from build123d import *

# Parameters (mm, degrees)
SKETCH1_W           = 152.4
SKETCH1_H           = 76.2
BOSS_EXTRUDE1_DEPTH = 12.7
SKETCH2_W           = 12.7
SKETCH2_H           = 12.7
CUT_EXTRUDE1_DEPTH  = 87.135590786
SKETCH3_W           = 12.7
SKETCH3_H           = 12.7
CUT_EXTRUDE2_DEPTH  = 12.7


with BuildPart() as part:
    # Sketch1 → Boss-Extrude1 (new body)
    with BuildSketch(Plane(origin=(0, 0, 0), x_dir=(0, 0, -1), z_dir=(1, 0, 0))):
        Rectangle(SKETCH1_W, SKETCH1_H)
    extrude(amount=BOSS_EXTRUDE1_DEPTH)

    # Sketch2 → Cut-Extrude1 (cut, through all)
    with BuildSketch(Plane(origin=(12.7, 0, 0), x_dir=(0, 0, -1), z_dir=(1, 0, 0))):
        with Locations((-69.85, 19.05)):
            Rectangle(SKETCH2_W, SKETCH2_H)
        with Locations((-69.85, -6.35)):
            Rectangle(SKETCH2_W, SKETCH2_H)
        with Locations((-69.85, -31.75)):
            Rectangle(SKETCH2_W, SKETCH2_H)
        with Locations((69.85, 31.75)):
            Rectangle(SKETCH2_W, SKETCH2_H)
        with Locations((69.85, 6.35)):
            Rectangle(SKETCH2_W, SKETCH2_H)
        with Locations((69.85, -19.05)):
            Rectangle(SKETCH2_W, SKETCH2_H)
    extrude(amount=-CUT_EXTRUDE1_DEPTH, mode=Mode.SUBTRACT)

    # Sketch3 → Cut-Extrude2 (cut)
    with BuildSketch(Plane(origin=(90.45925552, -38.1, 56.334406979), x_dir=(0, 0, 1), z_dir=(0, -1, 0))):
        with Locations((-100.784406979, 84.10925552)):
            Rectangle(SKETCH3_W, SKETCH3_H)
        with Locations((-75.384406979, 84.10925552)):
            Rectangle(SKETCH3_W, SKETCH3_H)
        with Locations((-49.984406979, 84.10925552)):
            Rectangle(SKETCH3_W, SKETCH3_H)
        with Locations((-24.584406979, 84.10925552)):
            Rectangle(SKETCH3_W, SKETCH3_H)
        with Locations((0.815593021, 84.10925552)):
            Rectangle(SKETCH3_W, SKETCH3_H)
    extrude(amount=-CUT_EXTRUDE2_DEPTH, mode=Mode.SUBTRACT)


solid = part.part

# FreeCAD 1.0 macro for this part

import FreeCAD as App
import Part
import Sketcher
Q = App.Units.Quantity

doc = App.newDocument("Part")
params = doc.addObject("Spreadsheet::Sheet", "Params")
for row, (alias, value) in enumerate([
    ("sketch1_width", "3 in"),
    ("sketch1_height", "6 in"),
    ("pad1_length", "0.5 in"),
    ("sketch2_width", "0.5 in"),
    ("sketch3_width", "0.5 in"),
    ("pocket2_length", "0.5 in"),
], start=1):
    params.set(f"A{row}", alias)
    params.set(f"B{row}", "=" + value)
    params.setAlias(f"B{row}", alias)

body = doc.addObject("PartDesign::Body", "Body")

# Sketch on YZ plane
sketch1 = body.newObject("Sketcher::SketchObject", "Sketch")
sketch1.AttachmentSupport = (doc.getObject("YZ_Plane"), [""])
sketch1.MapMode = "FlatFace"
sketch1.addGeometry(Part.LineSegment(App.Vector(38, 76, 0), App.Vector(-38, 76, 0)), False)
sketch1.addGeometry(Part.LineSegment(App.Vector(-38, 76, 0), App.Vector(-38, -76, 0)), False)
sketch1.addGeometry(Part.LineSegment(App.Vector(-38, -76, 0), App.Vector(38, -76, 0)), False)
sketch1.addGeometry(Part.LineSegment(App.Vector(38, -76, 0), App.Vector(38, 76, 0)), False)
sketch1.addConstraint(Sketcher.Constraint("Coincident", 0, 2, 1, 1))
sketch1.addConstraint(Sketcher.Constraint("Coincident", 1, 2, 2, 1))
sketch1.addConstraint(Sketcher.Constraint("Coincident", 2, 2, 3, 1))
sketch1.addConstraint(Sketcher.Constraint("Coincident", 3, 2, 0, 1))
sketch1.addConstraint(Sketcher.Constraint("Horizontal", 0))
sketch1.addConstraint(Sketcher.Constraint("Vertical", 1))
sketch1.addConstraint(Sketcher.Constraint("Horizontal", 2))
sketch1.addConstraint(Sketcher.Constraint("Vertical", 3))
sketch1.addConstraint(Sketcher.Constraint("Symmetric", 0, 2, 2, 2, -1, 1))
sketch1.addConstraint(Sketcher.Constraint("DistanceX", 0, 2, 0, 1, Q("3 in")))
sketch1.addConstraint(Sketcher.Constraint("DistanceY", 1, 2, 1, 1, Q("6 in")))
sketch1.setExpression("Constraints[9]", "Params.sketch1_width")
sketch1.setExpression("Constraints[10]", "Params.sketch1_height")
pad1 = body.newObject("PartDesign::Pad", "Pad")
pad1.Profile = sketch1
pad1.setExpression("Length", "Params.pad1_length")

# Sketch on YZ plane
sketch2 = body.newObject("Sketcher::SketchObject", "Sketch001")
sketch2.AttachmentSupport = (doc.getObject("YZ_Plane"), [""])
sketch2.MapMode = "FlatFace"
sketch2.AttachmentOffset = App.Placement(App.Vector(0, 0, 0.5 * 25.4), App.Rotation())
sketch2.addGeometry(Part.LineSegment(App.Vector(25, 76, 0), App.Vector(13, 76, 0)), False)
sketch2.addGeometry(Part.LineSegment(App.Vector(13, 76, 0), App.Vector(13, 64, 0)), False)
sketch2.addGeometry(Part.LineSegment(App.Vector(13, 64, 0), App.Vector(25, 64, 0)), False)
sketch2.addGeometry(Part.LineSegment(App.Vector(25, 64, 0), App.Vector(25, 76, 0)), False)
sketch2.addGeometry(Part.LineSegment(App.Vector(0, 76, 0), App.Vector(-13, 76, 0)), False)
sketch2.addGeometry(Part.LineSegment(App.Vector(-13, 76, 0), App.Vector(-13, 64, 0)), False)
sketch2.addGeometry(Part.LineSegment(App.Vector(-13, 64, 0), App.Vector(0, 64, 0)), False)
sketch2.addGeometry(Part.LineSegment(App.Vector(0, 64, 0), App.Vector(0, 76, 0)), False)
sketch2.addGeometry(Part.LineSegment(App.Vector(-25, 76, 0), App.Vector(-38, 76, 0)), False)
sketch2.addGeometry(Part.LineSegment(App.Vector(-38, 76, 0), App.Vector(-38, 64, 0)), False)
sketch2.addGeometry(Part.LineSegment(App.Vector(-38, 64, 0), App.Vector(-25, 64, 0)), False)
sketch2.addGeometry(Part.LineSegment(App.Vector(-25, 64, 0), App.Vector(-25, 76, 0)), False)
sketch2.addGeometry(Part.LineSegment(App.Vector(38, -64, 0), App.Vector(25, -64, 0)), False)
sketch2.addGeometry(Part.LineSegment(App.Vector(25, -64, 0), App.Vector(25, -76, 0)), False)
sketch2.addGeometry(Part.LineSegment(App.Vector(25, -76, 0), App.Vector(38, -76, 0)), False)
sketch2.addGeometry(Part.LineSegment(App.Vector(38, -76, 0), App.Vector(38, -64, 0)), False)
sketch2.addGeometry(Part.LineSegment(App.Vector(13, -64, 0), App.Vector(0, -64, 0)), False)
sketch2.addGeometry(Part.LineSegment(App.Vector(0, -64, 0), App.Vector(0, -76, 0)), False)
sketch2.addGeometry(Part.LineSegment(App.Vector(0, -76, 0), App.Vector(13, -76, 0)), False)
sketch2.addGeometry(Part.LineSegment(App.Vector(13, -76, 0), App.Vector(13, -64, 0)), False)
sketch2.addGeometry(Part.LineSegment(App.Vector(-13, -64, 0), App.Vector(-25, -64, 0)), False)
sketch2.addGeometry(Part.LineSegment(App.Vector(-25, -64, 0), App.Vector(-25, -76, 0)), False)
sketch2.addGeometry(Part.LineSegment(App.Vector(-25, -76, 0), App.Vector(-13, -76, 0)), False)
sketch2.addGeometry(Part.LineSegment(App.Vector(-13, -76, 0), App.Vector(-13, -64, 0)), False)
sketch2.addConstraint(Sketcher.Constraint("Coincident", 0, 2, 1, 1))
sketch2.addConstraint(Sketcher.Constraint("Coincident", 1, 2, 2, 1))
sketch2.addConstraint(Sketcher.Constraint("Coincident", 2, 2, 3, 1))
sketch2.addConstraint(Sketcher.Constraint("Coincident", 3, 2, 0, 1))
sketch2.addConstraint(Sketcher.Constraint("Coincident", 4, 2, 5, 1))
sketch2.addConstraint(Sketcher.Constraint("Coincident", 5, 2, 6, 1))
sketch2.addConstraint(Sketcher.Constraint("Coincident", 6, 2, 7, 1))
sketch2.addConstraint(Sketcher.Constraint("Coincident", 7, 2, 4, 1))
sketch2.addConstraint(Sketcher.Constraint("Coincident", 8, 2, 9, 1))
sketch2.addConstraint(Sketcher.Constraint("Coincident", 9, 2, 10, 1))
sketch2.addConstraint(Sketcher.Constraint("Coincident", 10, 2, 11, 1))
sketch2.addConstraint(Sketcher.Constraint("Coincident", 11, 2, 8, 1))
sketch2.addConstraint(Sketcher.Constraint("Coincident", 12, 2, 13, 1))
sketch2.addConstraint(Sketcher.Constraint("Coincident", 13, 2, 14, 1))
sketch2.addConstraint(Sketcher.Constraint("Coincident", 14, 2, 15, 1))
sketch2.addConstraint(Sketcher.Constraint("Coincident", 15, 2, 12, 1))
sketch2.addConstraint(Sketcher.Constraint("Coincident", 16, 2, 17, 1))
sketch2.addConstraint(Sketcher.Constraint("Coincident", 17, 2, 18, 1))
sketch2.addConstraint(Sketcher.Constraint("Coincident", 18, 2, 19, 1))
sketch2.addConstraint(Sketcher.Constraint("Coincident", 19, 2, 16, 1))
sketch2.addConstraint(Sketcher.Constraint("Coincident", 20, 2, 21, 1))
sketch2.addConstraint(Sketcher.Constraint("Coincident", 21, 2, 22, 1))
sketch2.addConstraint(Sketcher.Constraint("Coincident", 22, 2, 23, 1))
sketch2.addConstraint(Sketcher.Constraint("Coincident", 23, 2, 20, 1))
sketch2.addConstraint(Sketcher.Constraint("Horizontal", 0))
sketch2.addConstraint(Sketcher.Constraint("Vertical", 1))
sketch2.addConstraint(Sketcher.Constraint("Horizontal", 2))
sketch2.addConstraint(Sketcher.Constraint("Vertical", 3))
sketch2.addConstraint(Sketcher.Constraint("Horizontal", 4))
sketch2.addConstraint(Sketcher.Constraint("Vertical", 5))
sketch2.addConstraint(Sketcher.Constraint("Horizontal", 6))
sketch2.addConstraint(Sketcher.Constraint("Vertical", 7))
sketch2.addConstraint(Sketcher.Constraint("Horizontal", 8))
sketch2.addConstraint(Sketcher.Constraint("Vertical", 9))
sketch2.addConstraint(Sketcher.Constraint("Horizontal", 10))
sketch2.addConstraint(Sketcher.Constraint("Vertical", 11))
sketch2.addConstraint(Sketcher.Constraint("Horizontal", 12))
sketch2.addConstraint(Sketcher.Constraint("Vertical", 13))
sketch2.addConstraint(Sketcher.Constraint("Horizontal", 14))
sketch2.addConstraint(Sketcher.Constraint("Vertical", 15))
sketch2.addConstraint(Sketcher.Constraint("Horizontal", 16))
sketch2.addConstraint(Sketcher.Constraint("Vertical", 17))
sketch2.addConstraint(Sketcher.Constraint("Horizontal", 18))
sketch2.addConstraint(Sketcher.Constraint("Vertical", 19))
sketch2.addConstraint(Sketcher.Constraint("Horizontal", 20))
sketch2.addConstraint(Sketcher.Constraint("Vertical", 21))
sketch2.addConstraint(Sketcher.Constraint("Horizontal", 22))
sketch2.addConstraint(Sketcher.Constraint("Vertical", 23))
sketch2.addConstraint(Sketcher.Constraint("Symmetric", 10, 2, 12, 2, -1, 1))
sketch2.addConstraint(Sketcher.Constraint("Symmetric", 8, 2, 14, 2, -1, 1))
sketch2.addConstraint(Sketcher.Constraint("Symmetric", 6, 2, 16, 2, -1, 1))
sketch2.addConstraint(Sketcher.Constraint("Symmetric", 4, 2, 18, 2, -1, 1))
sketch2.addConstraint(Sketcher.Constraint("Symmetric", 2, 2, 20, 2, -1, 1))
sketch2.addConstraint(Sketcher.Constraint("Symmetric", 0, 2, 22, 2, -1, 1))
sketch2.addConstraint(Sketcher.Constraint("Symmetric", 0, 2, 4, 2, -2))
sketch2.addConstraint(Sketcher.Constraint("Symmetric", 2, 2, 10, 2, -2))
sketch2.addConstraint(Sketcher.Constraint("PointOnObject", 6, 2, -2))
sketch2.addConstraint(Sketcher.Constraint("Horizontal", 2, 2, 5, 2))
sketch2.addConstraint(Sketcher.Constraint("Horizontal", 7, 2, 8, 2))
sketch2.addConstraint(Sketcher.Constraint("Equal", 2, 4))
sketch2.addConstraint(Sketcher.Constraint("Equal", 6, 8))
sketch2.addConstraint(Sketcher.Constraint("Equal", 22, 1))
sketch2.addConstraint(Sketcher.Constraint("DistanceX", 0, 2, 0, 1, Q("0.5 in")))
sketch2.addConstraint(Sketcher.Constraint("DistanceY", -1, 1, 0, 2, Q("3 in")))
sketch2.setExpression("Constraints[62]", "Params.sketch2_width")
pocket1 = body.newObject("PartDesign::Pocket", "Pocket")
pocket1.Profile = sketch2
pocket1.Type = "ThroughAll"

# Sketch on XZ plane
sketch3 = body.newObject("Sketcher::SketchObject", "Sketch002")
sketch3.AttachmentSupport = (doc.getObject("XZ_Plane"), [""])
sketch3.MapMode = "FlatFace"
sketch3.AttachmentOffset = App.Placement(App.Vector(0, 0, 1.5 * 25.4), App.Rotation())
sketch3.addGeometry(Part.LineSegment(App.Vector(0, -51, 0), App.Vector(13, -51, 0)), False)
sketch3.addGeometry(Part.LineSegment(App.Vector(13, -51, 0), App.Vector(13, -38, 0)), False)
sketch3.addGeometry(Part.LineSegment(App.Vector(13, -38, 0), App.Vector(0, -38, 0)), False)
sketch3.addGeometry(Part.LineSegment(App.Vector(0, -38, 0), App.Vector(0, -51, 0)), False)
sketch3.addGeometry(Part.LineSegment(App.Vector(0, -25, 0), App.Vector(13, -25, 0)), False)
sketch3.addGeometry(Part.LineSegment(App.Vector(13, -25, 0), App.Vector(13, -13, 0)), False)
sketch3.addGeometry(Part.LineSegment(App.Vector(13, -13, 0), App.Vector(0, -13, 0)), False)
sketch3.addGeometry(Part.LineSegment(App.Vector(0, -13, 0), App.Vector(0, -25, 0)), False)
sketch3.addGeometry(Part.LineSegment(App.Vector(0, 0, 0), App.Vector(13, 0, 0)), False)
sketch3.addGeometry(Part.LineSegment(App.Vector(13, 0, 0), App.Vector(13, 13, 0)), False)
sketch3.addGeometry(Part.LineSegment(App.Vector(13, 13, 0), App.Vector(0, 13, 0)), False)
sketch3.addGeometry(Part.LineSegment(App.Vector(0, 13, 0), App.Vector(0, 0, 0)), False)
sketch3.addGeometry(Part.LineSegment(App.Vector(0, 25, 0), App.Vector(13, 25, 0)), False)
sketch3.addGeometry(Part.LineSegment(App.Vector(13, 25, 0), App.Vector(13, 38, 0)), False)
sketch3.addGeometry(Part.LineSegment(App.Vector(13, 38, 0), App.Vector(0, 38, 0)), False)
sketch3.addGeometry(Part.LineSegment(App.Vector(0, 38, 0), App.Vector(0, 25, 0)), False)
sketch3.addGeometry(Part.LineSegment(App.Vector(0, 51, 0), App.Vector(13, 51, 0)), False)
sketch3.addGeometry(Part.LineSegment(App.Vector(13, 51, 0), App.Vector(13, 64, 0)), False)
sketch3.addGeometry(Part.LineSegment(App.Vector(13, 64, 0), App.Vector(0, 64, 0)), False)
sketch3.addGeometry(Part.LineSegment(App.Vector(0, 64, 0), App.Vector(0, 51, 0)), False)
sketch3.addConstraint(Sketcher.Constraint("Coincident", 0, 2, 1, 1))
sketch3.addConstraint(Sketcher.Constraint("Coincident", 1, 2, 2, 1))
sketch3.addConstraint(Sketcher.Constraint("Coincident", 2, 2, 3, 1))
sketch3.addConstraint(Sketcher.Constraint("Coincident", 3, 2, 0, 1))
sketch3.addConstraint(Sketcher.Constraint("Coincident", 4, 2, 5, 1))
sketch3.addConstraint(Sketcher.Constraint("Coincident", 5, 2, 6, 1))
sketch3.addConstraint(Sketcher.Constraint("Coincident", 6, 2, 7, 1))
sketch3.addConstraint(Sketcher.Constraint("Coincident", 7, 2, 4, 1))
sketch3.addConstraint(Sketcher.Constraint("Coincident", 8, 2, 9, 1))
sketch3.addConstraint(Sketcher.Constraint("Coincident", 9, 2, 10, 1))
sketch3.addConstraint(Sketcher.Constraint("Coincident", 10, 2, 11, 1))
sketch3.addConstraint(Sketcher.Constraint("Coincident", 11, 2, 8, 1))
sketch3.addConstraint(Sketcher.Constraint("Coincident", 12, 2, 13, 1))
sketch3.addConstraint(Sketcher.Constraint("Coincident", 13, 2, 14, 1))
sketch3.addConstraint(Sketcher.Constraint("Coincident", 14, 2, 15, 1))
sketch3.addConstraint(Sketcher.Constraint("Coincident", 15, 2, 12, 1))
sketch3.addConstraint(Sketcher.Constraint("Coincident", 16, 2, 17, 1))
sketch3.addConstraint(Sketcher.Constraint("Coincident", 17, 2, 18, 1))
sketch3.addConstraint(Sketcher.Constraint("Coincident", 18, 2, 19, 1))
sketch3.addConstraint(Sketcher.Constraint("Coincident", 19, 2, 16, 1))
sketch3.addConstraint(Sketcher.Constraint("Horizontal", 0))
sketch3.addConstraint(Sketcher.Constraint("Vertical", 1))
sketch3.addConstraint(Sketcher.Constraint("Horizontal", 2))
sketch3.addConstraint(Sketcher.Constraint("Vertical", 3))
sketch3.addConstraint(Sketcher.Constraint("Horizontal", 4))
sketch3.addConstraint(Sketcher.Constraint("Vertical", 5))
sketch3.addConstraint(Sketcher.Constraint("Horizontal", 6))
sketch3.addConstraint(Sketcher.Constraint("Vertical", 7))
sketch3.addConstraint(Sketcher.Constraint("Horizontal", 8))
sketch3.addConstraint(Sketcher.Constraint("Vertical", 9))
sketch3.addConstraint(Sketcher.Constraint("Horizontal", 10))
sketch3.addConstraint(Sketcher.Constraint("Vertical", 11))
sketch3.addConstraint(Sketcher.Constraint("Horizontal", 12))
sketch3.addConstraint(Sketcher.Constraint("Vertical", 13))
sketch3.addConstraint(Sketcher.Constraint("Horizontal", 14))
sketch3.addConstraint(Sketcher.Constraint("Vertical", 15))
sketch3.addConstraint(Sketcher.Constraint("Horizontal", 16))
sketch3.addConstraint(Sketcher.Constraint("Vertical", 17))
sketch3.addConstraint(Sketcher.Constraint("Horizontal", 18))
sketch3.addConstraint(Sketcher.Constraint("Vertical", 19))
sketch3.addConstraint(Sketcher.Constraint("Coincident", 11, 2, -1, 1))
sketch3.addConstraint(Sketcher.Constraint("Symmetric", 6, 2, 10, 2, -1, 1))
sketch3.addConstraint(Sketcher.Constraint("Symmetric", 2, 2, 14, 2, -1, 1))
sketch3.addConstraint(Sketcher.Constraint("Symmetric", 7, 2, 15, 2, -1, 1))
sketch3.addConstraint(Sketcher.Constraint("Symmetric", 3, 2, 19, 2, -1, 1))
sketch3.addConstraint(Sketcher.Constraint("Vertical", 1, 2, 4, 2))
sketch3.addConstraint(Sketcher.Constraint("Vertical", 5, 2, 8, 2))
sketch3.addConstraint(Sketcher.Constraint("Vertical", 9, 2, 12, 2))
sketch3.addConstraint(Sketcher.Constraint("Vertical", 13, 2, 16, 2))
sketch3.addConstraint(Sketcher.Constraint("Equal", 18, 1))
sketch3.addConstraint(Sketcher.Constraint("Equal", 3, 5))
sketch3.addConstraint(Sketcher.Constraint("Equal", 7, 9))
sketch3.addConstraint(Sketcher.Constraint("Equal", 11, 13))
sketch3.addConstraint(Sketcher.Constraint("Equal", 15, 17))
sketch3.addConstraint(Sketcher.Constraint("DistanceX", 0, 1, 0, 2, Q("0.5 in")))
sketch3.setExpression("Constraints[54]", "Params.sketch3_width")
pocket2 = body.newObject("PartDesign::Pocket", "Pocket001")
pocket2.Profile = sketch3
pocket2.setExpression("Length", "Params.pocket2_length")

doc.recompute()
